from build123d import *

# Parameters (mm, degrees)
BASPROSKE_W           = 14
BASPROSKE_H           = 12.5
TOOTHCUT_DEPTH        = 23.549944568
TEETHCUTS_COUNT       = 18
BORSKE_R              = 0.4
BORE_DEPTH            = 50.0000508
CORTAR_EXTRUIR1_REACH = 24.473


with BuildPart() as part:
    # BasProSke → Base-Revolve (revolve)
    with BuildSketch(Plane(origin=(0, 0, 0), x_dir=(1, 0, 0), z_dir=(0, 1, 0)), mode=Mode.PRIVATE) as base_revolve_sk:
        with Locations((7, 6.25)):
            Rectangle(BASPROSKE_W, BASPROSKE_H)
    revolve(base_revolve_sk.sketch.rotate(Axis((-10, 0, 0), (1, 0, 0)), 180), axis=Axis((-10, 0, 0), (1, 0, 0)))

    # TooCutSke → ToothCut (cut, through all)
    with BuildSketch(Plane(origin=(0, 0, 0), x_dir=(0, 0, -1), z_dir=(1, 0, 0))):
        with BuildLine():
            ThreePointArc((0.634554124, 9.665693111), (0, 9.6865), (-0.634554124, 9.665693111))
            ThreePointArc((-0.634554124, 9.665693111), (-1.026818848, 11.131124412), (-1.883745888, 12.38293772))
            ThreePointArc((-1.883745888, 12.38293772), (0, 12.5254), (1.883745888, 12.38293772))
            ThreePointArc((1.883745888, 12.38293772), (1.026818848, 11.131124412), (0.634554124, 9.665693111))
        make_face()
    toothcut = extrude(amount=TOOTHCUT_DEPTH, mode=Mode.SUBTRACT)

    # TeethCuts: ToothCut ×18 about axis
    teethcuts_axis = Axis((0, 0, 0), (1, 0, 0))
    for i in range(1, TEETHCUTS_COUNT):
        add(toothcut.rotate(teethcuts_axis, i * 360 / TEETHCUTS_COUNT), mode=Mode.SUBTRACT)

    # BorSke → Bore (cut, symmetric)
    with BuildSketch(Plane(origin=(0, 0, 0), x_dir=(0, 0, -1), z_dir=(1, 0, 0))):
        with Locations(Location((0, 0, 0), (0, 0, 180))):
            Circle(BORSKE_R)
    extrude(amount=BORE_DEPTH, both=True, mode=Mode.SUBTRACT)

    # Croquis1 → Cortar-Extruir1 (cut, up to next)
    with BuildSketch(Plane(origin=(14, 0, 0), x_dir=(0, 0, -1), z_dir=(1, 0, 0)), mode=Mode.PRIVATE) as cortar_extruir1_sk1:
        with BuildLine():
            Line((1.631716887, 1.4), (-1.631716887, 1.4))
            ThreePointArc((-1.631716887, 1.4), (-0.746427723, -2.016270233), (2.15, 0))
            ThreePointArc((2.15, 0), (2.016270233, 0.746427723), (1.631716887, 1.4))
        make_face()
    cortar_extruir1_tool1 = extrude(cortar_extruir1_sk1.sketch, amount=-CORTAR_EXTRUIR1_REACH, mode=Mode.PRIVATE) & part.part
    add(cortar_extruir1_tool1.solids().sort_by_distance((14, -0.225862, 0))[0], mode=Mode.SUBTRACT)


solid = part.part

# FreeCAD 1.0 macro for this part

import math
import FreeCAD as App
import Part
import Sketcher
from FreeCAD import Vector


def add_polygon(sketch, points):
    """Adds a closed chain of lines whose ends are joined by coincident constraints."""
    first, n = sketch.GeometryCount, len(points)
    for a, b in zip(points, points[1:] + points[:1]):
        sketch.addGeometry(Part.LineSegment(App.Vector(*a, 0), App.Vector(*b, 0)), False)
    for i in range(n):
        sketch.addConstraint(Sketcher.Constraint("Coincident", first + i, 2, first + (i + 1) % n, 1))

doc = App.newDocument("Part")
body = doc.addObject("PartDesign::Body", "Body")

# Sketch on XZ plane
sketch1 = body.newObject("Sketcher::SketchObject", "Sketch")
sketch1.AttachmentSupport = (doc.getObject("XZ_Plane"), [""])
sketch1.MapMode = "FlatFace"
add_polygon(sketch1, [(0, -12), (0, 0), (14, 0), (14, -12)])  # lines 0-3
sketch1.addConstraint(Sketcher.Constraint("Vertical", 0))
sketch1.addConstraint(Sketcher.Constraint("Horizontal", 1))
sketch1.addConstraint(Sketcher.Constraint("Vertical", 2))
sketch1.addConstraint(Sketcher.Constraint("Horizontal", 3))
sketch1.addConstraint(Sketcher.Constraint("Coincident", 0, 2, -1, 1))
sketch1.addConstraint(Sketcher.Constraint("DistanceX", 1, 1, 1, 2, 14.0))
sketch1.addConstraint(Sketcher.Constraint("DistanceY", 0, 1, 0, 2, 12.5))
revolution = body.newObject("PartDesign::Revolution", "Revolution")
revolution.Profile = sketch1
revolution.ReferenceAxis = (sketch1, ["H_Axis"])
revolution.Angle = 360

# Sketch on YZ plane
sketch2 = body.newObject("Sketcher::SketchObject", "Sketch001")
sketch2.AttachmentSupport = (doc.getObject("YZ_Plane"), [""])
sketch2.MapMode = "FlatFace"
sketch2.addGeometry(Part.ArcOfCircle(Part.Circle(Vector(0, 0, 0), Vector(0, 0, 1), 9.7), math.radians(-3.76), math.radians(3.76)), False)
sketch2.addGeometry(Part.ArcOfCircle(Part.Circle(Vector(9.3, -5.1, 0), Vector(0, 0, 1), 4.5), math.radians(46), math.radians(85)), False)
sketch2.addGeometry(Part.ArcOfCircle(Part.Circle(Vector(0, 0, 0), Vector(0, 0, 1), 12.5), math.radians(-8.65), math.radians(8.65)), False)
sketch2.addGeometry(Part.ArcOfCircle(Part.Circle(Vector(9.3, 5.1, 0), Vector(0, 0, 1), 4.5), math.radians(-85), math.radians(-46)), False)
sketch2.addConstraint(Sketcher.Constraint("Coincident", 0, 1, 1, 2))
sketch2.addConstraint(Sketcher.Constraint("Coincident", 1, 1, 2, 1))
sketch2.addConstraint(Sketcher.Constraint("Coincident", 2, 2, 3, 2))
sketch2.addConstraint(Sketcher.Constraint("Coincident", 3, 1, 0, 2))
sketch2.addConstraint(Sketcher.Constraint("Coincident", 0, 3, -1, 1))
sketch2.addConstraint(Sketcher.Constraint("Coincident", 2, 3, -1, 1))
sketch2.addConstraint(Sketcher.Constraint("Equal", 1, 3))
sketch2.addConstraint(Sketcher.Constraint("Symmetric", 1, 3, 3, 3, -1))
sketch2.addConstraint(Sketcher.Constraint("Radius", 1, 4.5))
sketch2.addConstraint(Sketcher.Constraint("Radius", 0, 9.6865))
sketch2.addConstraint(Sketcher.Constraint("Radius", 2, 12.5254))
sketch2.addConstraint(Sketcher.Constraint("DistanceY", 0, 1, 2, 2, 2.5183))
sketch2.addConstraint(Sketcher.Constraint("DistanceX", -1, 1, 1, 3, 9.251469))
pocket1 = body.newObject("PartDesign::Pocket", "Pocket")
pocket1.Profile = sketch2
pocket1.Type = "ThroughAll"
pocket1.Reversed = True
doc.recompute()

polarpattern = body.newObject("PartDesign::PolarPattern", "PolarPattern")
polarpattern.Originals = [pocket1]
polarpattern.Axis = (doc.getObject("X_Axis"), [""])
polarpattern.Angle = 360
polarpattern.Occurrences = 18
body.Tip = polarpattern

# Sketch on YZ plane
sketch3 = body.newObject("Sketcher::SketchObject", "Sketch002")
sketch3.AttachmentSupport = (doc.getObject("YZ_Plane"), [""])
sketch3.MapMode = "FlatFace"
sketch3.addGeometry(Part.Circle(Vector(0, 0, 0), Vector(0, 0, 1), 0.4), False)
sketch3.addConstraint(Sketcher.Constraint("Coincident", 0, 3, -1, 1))
sketch3.addConstraint(Sketcher.Constraint("Diameter", 0, 0.8))
pocket2 = body.newObject("PartDesign::Pocket", "Pocket001")
pocket2.Profile = sketch3
pocket2.Length = 100.000102
pocket2.Midplane = True

# Sketch on YZ plane
sketch4 = body.newObject("Sketcher::SketchObject", "Sketch003")
sketch4.AttachmentSupport = (doc.getObject("YZ_Plane"), [""])
sketch4.MapMode = "FlatFace"
sketch4.AttachmentOffset = App.Placement(Vector(0, 0, 14), App.Rotation())
sketch4.addGeometry(Part.LineSegment(Vector(1.4, -1.6, 0), Vector(1.4, 1.6, 0)), False)
sketch4.addGeometry(Part.ArcOfCircle(Part.Circle(Vector(0, 0, 0), Vector(0, 0, 1), 2.1), math.radians(49), math.radians(270)), False)
sketch4.addGeometry(Part.ArcOfCircle(Part.Circle(Vector(0, 0, 0), Vector(0, 0, 1), 2.2), math.radians(-90), math.radians(-49)), False)
sketch4.addConstraint(Sketcher.Constraint("Coincident", 0, 2, 1, 1))
sketch4.addConstraint(Sketcher.Constraint("Tangent", 1, 2, 2, 1))
sketch4.addConstraint(Sketcher.Constraint("Coincident", 2, 2, 0, 1))
sketch4.addConstraint(Sketcher.Constraint("Vertical", 0))
sketch4.addConstraint(Sketcher.Constraint("Coincident", 1, 3, -1, 1))
sketch4.addConstraint(Sketcher.Constraint("Equal", 1, 2))
sketch4.addConstraint(Sketcher.Constraint("PointOnObject", 1, 2, -2))
sketch4.addConstraint(Sketcher.Constraint("Radius", 1, 2.15))
sketch4.addConstraint(Sketcher.Constraint("DistanceX", -1, 1, 0, 2, 1.4))
pocket3 = body.newObject("PartDesign::Pocket", "Pocket002")
pocket3.Profile = sketch4
pocket3.Length = 14

doc.recompute()
